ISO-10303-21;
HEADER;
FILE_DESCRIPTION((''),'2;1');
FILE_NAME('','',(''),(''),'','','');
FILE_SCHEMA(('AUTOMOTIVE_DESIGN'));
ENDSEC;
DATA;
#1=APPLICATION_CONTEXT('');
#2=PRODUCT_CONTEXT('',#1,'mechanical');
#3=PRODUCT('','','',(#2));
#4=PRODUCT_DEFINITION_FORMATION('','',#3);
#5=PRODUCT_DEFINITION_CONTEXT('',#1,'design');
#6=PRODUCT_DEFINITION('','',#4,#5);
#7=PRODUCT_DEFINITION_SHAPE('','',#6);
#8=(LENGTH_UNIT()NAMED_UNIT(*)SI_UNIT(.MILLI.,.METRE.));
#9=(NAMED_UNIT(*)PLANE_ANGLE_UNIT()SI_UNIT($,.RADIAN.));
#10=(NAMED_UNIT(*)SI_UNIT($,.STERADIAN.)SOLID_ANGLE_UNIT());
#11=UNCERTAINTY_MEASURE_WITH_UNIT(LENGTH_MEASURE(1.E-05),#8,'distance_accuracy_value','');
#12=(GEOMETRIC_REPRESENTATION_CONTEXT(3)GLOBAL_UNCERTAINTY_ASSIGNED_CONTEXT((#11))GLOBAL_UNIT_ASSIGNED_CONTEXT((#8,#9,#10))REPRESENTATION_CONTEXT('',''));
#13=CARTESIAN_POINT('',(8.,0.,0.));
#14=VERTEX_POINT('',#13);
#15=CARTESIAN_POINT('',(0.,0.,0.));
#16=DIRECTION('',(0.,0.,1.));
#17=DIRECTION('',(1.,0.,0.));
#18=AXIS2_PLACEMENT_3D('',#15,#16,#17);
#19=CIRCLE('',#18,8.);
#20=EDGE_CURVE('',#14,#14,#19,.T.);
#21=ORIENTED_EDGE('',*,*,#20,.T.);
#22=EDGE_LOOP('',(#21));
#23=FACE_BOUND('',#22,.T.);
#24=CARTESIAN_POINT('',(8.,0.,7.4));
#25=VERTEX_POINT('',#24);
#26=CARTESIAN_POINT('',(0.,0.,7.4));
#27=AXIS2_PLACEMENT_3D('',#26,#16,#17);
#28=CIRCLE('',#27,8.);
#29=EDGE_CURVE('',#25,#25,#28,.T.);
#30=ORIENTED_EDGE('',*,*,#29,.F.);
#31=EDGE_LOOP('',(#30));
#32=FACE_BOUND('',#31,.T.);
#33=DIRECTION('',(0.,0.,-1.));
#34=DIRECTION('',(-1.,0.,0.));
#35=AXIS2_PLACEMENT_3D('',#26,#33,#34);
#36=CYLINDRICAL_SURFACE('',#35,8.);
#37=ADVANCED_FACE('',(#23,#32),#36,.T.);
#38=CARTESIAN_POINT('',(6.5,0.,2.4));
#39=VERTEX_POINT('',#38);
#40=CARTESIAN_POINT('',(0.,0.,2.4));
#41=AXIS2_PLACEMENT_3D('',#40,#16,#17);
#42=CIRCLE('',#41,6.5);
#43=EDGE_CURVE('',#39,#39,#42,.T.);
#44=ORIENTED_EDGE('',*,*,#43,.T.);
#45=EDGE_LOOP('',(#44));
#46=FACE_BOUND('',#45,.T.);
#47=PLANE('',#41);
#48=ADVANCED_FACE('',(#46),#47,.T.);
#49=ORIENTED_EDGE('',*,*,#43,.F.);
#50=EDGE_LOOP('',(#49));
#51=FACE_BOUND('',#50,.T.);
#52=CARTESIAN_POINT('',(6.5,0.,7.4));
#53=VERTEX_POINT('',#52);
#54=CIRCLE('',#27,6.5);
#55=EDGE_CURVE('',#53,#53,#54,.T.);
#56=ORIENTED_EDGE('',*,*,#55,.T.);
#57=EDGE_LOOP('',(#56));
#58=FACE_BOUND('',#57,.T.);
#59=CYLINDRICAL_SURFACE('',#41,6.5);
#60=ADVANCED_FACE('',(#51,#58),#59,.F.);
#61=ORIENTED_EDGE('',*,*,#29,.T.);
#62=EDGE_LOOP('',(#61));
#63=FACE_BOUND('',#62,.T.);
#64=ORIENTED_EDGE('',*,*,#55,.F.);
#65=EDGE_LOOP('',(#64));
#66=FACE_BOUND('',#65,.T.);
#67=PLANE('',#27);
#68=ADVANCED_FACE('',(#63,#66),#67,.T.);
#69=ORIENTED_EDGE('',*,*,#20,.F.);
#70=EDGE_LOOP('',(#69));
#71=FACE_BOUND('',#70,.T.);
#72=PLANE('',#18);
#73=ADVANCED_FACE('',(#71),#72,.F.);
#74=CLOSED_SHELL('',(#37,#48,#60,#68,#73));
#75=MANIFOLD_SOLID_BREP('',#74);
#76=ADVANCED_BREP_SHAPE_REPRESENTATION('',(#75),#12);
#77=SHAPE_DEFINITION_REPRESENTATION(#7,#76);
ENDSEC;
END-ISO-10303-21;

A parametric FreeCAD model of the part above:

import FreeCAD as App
import Part
import Sketcher

V = App.Vector

doc = App.newDocument("Part")
body = doc.addObject("PartDesign::Body", "Body")

# Sketch on XY plane
sketch1 = body.newObject("Sketcher::SketchObject", "Sketch")
sketch1.AttachmentSupport = (doc.getObject("XY_Plane"), [""])
sketch1.MapMode = "FlatFace"
sketch1.addGeometry(Part.Circle(V(0, 0, 0), V(0, 0, 1), 8), False)
sketch1.addConstraint([
    Sketcher.Constraint("Coincident", 0, 3, -1, 1),
    Sketcher.Constraint("Diameter", 0, 16.0),
])
pad1 = body.newObject("PartDesign::Pad", "Pad")
pad1.Profile = sketch1
pad1.Length = 7.4

# Sketch on XY plane
sketch2 = body.newObject("Sketcher::SketchObject", "Sketch001")
sketch2.AttachmentSupport = (doc.getObject("XY_Plane"), [""])
sketch2.MapMode = "FlatFace"
sketch2.AttachmentOffset = App.Placement(V(0, 0, 7.4), App.Rotation())
sketch2.addGeometry(Part.Circle(V(0, 0, 0), V(0, 0, 1), 6.5), False)
sketch2.addConstraint([
    Sketcher.Constraint("Coincident", 0, 3, -1, 1),
    Sketcher.Constraint("Diameter", 0, 13.0),
])
pocket1 = body.newObject("PartDesign::Pocket", "Pocket")
pocket1.Profile = sketch2
pocket1.Length = 5

doc.recompute()
